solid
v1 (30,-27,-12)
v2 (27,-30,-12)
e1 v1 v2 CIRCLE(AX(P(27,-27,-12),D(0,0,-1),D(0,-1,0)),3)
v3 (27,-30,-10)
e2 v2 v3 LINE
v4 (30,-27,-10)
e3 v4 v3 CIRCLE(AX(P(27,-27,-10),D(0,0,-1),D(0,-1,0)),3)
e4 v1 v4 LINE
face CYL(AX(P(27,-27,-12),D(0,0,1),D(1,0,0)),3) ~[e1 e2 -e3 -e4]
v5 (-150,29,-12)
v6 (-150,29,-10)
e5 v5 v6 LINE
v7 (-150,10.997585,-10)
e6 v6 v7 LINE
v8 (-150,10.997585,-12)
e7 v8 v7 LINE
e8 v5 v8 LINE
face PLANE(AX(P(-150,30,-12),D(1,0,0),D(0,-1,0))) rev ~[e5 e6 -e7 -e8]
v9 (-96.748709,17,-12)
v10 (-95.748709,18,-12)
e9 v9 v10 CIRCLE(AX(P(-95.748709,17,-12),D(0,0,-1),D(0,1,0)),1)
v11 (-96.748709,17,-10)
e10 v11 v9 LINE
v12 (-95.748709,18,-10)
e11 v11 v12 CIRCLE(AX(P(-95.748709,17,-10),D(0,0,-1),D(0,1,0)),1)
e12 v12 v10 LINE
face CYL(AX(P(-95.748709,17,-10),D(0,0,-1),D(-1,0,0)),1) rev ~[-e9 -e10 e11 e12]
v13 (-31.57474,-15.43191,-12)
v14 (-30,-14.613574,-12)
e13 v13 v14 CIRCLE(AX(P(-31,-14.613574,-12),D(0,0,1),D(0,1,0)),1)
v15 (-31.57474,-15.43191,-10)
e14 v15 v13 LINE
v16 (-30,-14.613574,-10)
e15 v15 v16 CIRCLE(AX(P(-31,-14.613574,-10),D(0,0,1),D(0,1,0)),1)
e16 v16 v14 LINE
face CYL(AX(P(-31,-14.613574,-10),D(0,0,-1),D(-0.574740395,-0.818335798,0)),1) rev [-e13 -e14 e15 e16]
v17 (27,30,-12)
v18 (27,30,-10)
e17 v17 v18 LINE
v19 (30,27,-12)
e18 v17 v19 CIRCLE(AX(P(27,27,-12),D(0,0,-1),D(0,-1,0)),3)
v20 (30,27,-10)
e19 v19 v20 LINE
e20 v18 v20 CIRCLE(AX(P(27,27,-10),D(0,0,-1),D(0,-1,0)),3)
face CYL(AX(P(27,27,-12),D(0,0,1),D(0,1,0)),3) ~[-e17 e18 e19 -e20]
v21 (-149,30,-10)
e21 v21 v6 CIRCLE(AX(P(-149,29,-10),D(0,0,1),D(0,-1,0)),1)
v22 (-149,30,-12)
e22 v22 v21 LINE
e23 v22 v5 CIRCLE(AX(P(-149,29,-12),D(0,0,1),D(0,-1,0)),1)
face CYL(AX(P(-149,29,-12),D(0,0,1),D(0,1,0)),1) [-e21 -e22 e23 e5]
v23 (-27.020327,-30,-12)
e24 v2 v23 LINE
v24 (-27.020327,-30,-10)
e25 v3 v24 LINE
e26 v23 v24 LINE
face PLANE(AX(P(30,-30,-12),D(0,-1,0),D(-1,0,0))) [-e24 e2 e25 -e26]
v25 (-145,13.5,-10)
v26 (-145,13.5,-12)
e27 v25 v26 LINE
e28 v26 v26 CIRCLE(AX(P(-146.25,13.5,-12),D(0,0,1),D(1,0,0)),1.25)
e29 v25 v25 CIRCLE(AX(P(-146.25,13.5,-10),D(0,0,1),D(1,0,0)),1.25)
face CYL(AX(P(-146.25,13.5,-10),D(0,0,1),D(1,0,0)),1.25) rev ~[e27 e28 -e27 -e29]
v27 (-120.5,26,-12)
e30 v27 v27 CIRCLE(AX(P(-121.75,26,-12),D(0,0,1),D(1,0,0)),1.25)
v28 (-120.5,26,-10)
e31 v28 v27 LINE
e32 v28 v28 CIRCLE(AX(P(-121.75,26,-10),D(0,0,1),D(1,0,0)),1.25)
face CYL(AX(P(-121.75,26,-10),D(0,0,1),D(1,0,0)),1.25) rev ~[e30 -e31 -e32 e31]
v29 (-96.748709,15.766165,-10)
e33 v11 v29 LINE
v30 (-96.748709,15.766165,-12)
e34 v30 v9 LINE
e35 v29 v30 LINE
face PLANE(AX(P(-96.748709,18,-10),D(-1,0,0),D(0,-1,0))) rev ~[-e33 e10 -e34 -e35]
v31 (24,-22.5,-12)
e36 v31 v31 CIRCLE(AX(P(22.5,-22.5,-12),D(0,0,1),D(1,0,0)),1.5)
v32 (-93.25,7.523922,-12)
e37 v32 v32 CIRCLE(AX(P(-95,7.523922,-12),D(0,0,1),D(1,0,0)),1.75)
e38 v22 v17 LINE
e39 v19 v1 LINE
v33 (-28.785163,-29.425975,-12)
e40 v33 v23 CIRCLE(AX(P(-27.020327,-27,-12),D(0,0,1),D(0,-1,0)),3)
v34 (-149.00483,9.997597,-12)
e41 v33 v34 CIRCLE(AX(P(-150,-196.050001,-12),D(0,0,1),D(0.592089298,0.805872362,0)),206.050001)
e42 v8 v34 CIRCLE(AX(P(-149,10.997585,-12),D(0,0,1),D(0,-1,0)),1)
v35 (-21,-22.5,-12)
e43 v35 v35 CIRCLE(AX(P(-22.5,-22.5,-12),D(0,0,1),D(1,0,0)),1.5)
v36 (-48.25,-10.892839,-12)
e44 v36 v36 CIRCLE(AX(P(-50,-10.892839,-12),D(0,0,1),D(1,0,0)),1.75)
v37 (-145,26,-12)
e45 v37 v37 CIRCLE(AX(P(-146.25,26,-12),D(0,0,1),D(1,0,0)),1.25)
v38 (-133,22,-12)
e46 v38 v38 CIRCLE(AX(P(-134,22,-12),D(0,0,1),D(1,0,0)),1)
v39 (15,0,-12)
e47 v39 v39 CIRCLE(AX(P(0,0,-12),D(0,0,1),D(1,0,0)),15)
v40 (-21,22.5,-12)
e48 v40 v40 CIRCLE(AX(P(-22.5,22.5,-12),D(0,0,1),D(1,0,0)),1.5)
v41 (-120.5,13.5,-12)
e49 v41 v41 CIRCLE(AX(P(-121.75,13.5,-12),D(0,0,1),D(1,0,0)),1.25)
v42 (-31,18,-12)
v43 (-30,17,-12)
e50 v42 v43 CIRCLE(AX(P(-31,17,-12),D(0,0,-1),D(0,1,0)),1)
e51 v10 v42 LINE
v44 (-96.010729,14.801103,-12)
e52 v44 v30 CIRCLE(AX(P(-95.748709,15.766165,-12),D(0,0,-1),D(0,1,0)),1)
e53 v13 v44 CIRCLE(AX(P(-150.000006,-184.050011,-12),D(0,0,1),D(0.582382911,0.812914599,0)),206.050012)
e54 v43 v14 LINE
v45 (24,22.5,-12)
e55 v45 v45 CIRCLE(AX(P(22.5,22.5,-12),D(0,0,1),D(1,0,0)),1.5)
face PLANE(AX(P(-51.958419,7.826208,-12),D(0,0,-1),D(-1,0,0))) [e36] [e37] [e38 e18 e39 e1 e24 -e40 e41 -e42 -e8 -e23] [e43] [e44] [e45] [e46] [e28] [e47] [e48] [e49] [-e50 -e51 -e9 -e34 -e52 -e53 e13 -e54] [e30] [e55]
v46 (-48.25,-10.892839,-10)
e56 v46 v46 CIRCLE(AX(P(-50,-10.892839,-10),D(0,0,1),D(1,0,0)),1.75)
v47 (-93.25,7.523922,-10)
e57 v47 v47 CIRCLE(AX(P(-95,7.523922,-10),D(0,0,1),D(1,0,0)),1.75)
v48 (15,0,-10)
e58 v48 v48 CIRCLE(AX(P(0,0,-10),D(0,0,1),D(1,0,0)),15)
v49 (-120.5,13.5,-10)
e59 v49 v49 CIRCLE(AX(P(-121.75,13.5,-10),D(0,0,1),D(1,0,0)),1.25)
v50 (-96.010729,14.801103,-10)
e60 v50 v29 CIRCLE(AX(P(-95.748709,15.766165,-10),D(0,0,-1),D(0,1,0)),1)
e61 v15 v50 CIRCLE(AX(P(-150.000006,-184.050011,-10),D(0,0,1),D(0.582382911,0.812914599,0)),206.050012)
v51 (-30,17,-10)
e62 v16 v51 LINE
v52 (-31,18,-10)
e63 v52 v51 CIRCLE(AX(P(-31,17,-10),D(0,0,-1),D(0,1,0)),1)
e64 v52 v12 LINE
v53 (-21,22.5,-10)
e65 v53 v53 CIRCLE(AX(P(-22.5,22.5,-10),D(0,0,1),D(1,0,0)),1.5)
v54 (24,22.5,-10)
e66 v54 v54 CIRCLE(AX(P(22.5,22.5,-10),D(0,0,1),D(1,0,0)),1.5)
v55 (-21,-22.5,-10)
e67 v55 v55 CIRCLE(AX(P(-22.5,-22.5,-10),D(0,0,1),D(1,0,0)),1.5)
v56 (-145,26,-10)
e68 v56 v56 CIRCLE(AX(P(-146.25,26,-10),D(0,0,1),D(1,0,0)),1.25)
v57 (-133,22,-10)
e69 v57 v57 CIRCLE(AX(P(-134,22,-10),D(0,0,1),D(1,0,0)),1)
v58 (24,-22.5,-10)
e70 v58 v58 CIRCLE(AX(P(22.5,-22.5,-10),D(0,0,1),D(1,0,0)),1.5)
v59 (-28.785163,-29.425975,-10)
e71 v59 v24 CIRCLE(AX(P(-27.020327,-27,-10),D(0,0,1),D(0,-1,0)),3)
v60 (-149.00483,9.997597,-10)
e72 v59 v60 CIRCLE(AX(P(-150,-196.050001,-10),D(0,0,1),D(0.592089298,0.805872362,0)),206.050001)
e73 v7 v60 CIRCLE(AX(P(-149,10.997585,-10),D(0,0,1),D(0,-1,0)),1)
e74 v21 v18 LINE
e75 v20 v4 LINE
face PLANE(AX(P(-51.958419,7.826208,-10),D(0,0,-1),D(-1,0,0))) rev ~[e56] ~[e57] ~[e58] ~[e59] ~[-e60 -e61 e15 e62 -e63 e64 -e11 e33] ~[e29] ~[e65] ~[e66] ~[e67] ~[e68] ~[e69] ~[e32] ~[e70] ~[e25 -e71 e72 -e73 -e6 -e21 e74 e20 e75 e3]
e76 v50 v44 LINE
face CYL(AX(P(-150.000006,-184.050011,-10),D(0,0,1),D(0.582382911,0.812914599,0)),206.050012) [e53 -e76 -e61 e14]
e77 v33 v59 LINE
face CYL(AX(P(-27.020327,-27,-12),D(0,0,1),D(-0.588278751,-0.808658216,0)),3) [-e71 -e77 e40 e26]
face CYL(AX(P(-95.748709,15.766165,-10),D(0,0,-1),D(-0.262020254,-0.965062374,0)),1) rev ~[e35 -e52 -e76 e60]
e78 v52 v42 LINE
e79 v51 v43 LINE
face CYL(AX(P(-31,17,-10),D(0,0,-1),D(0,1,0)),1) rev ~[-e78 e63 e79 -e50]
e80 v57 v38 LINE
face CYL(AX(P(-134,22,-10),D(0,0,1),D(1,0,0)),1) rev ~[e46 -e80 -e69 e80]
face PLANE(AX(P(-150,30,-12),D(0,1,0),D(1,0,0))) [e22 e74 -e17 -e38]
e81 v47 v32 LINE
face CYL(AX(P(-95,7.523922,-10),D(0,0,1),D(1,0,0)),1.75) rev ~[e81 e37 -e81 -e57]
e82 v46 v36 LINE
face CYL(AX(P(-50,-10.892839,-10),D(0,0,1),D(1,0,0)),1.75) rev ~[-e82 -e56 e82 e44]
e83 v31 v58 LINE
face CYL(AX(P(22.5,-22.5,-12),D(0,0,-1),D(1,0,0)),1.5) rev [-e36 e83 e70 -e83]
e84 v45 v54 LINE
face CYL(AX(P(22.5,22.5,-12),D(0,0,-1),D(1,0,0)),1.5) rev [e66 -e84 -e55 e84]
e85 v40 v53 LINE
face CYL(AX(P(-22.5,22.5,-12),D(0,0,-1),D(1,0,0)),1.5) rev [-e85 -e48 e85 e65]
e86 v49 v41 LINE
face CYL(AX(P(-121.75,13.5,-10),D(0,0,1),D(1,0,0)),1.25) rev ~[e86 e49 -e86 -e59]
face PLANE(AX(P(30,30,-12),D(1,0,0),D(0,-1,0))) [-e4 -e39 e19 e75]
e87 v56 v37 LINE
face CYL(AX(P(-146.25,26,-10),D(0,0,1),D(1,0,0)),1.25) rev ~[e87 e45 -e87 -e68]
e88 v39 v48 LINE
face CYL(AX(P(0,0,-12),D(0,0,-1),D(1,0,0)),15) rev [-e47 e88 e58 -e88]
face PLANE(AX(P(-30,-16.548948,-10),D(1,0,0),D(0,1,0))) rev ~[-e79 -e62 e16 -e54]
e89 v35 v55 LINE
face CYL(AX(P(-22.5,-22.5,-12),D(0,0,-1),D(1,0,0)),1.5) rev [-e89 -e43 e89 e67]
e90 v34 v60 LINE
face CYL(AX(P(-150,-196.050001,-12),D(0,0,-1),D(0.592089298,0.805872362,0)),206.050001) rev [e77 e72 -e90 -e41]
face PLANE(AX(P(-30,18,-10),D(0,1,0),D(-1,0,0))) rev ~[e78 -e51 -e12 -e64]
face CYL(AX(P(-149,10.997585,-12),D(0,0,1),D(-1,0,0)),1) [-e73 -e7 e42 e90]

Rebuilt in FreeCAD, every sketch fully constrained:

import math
import FreeCAD as App
import Part
import Sketcher

V = App.Vector
Q = App.Units.Quantity


def edges_at(feature, points):
    """Names of the edges that pass closest to the given points."""
    edges = feature.Shape.Edges
    near = lambda p: min(range(len(edges)), key=lambda i: edges[i].distToShape(Part.Vertex(*p))[0])
    return sorted({f"Edge{near(p) + 1}" for p in points})

doc = App.newDocument("Part")
params = doc.addObject("Spreadsheet::Sheet", "Params")
for row, (alias, value) in enumerate([
    ("sketch1_diameter", "3 mm"),
    ("sketch1_diameter2", "30 mm"),
    ("sketch1_width", "180 mm"),
    ("sketch1_width2", "58 mm"),
    ("sketch1_height", "20 mm"),
    ("pad1_length", "2 mm"),
    ("fillet_radius", "3 mm"),
    ("sketch2_diameter", "2.5 mm"),
    ("pocket1_length", "25 mm"),
    ("sketch3_diameter", "2 mm"),
    ("sketch4_diameter", "3.5 mm"),
    ("fillet2_radius", "1 mm"),
    ("sketch5_height", "3 mm"),
    ("fillet3_radius", "1 mm"),
], start=1):
    params.set(f"A{row}", alias)
    params.set(f"B{row}", "=" + value)
    params.setAlias(f"B{row}", alias)

body = doc.addObject("PartDesign::Body", "Body")

# Sketch on XY plane
sketch1 = body.newObject("Sketcher::SketchObject", "Sketch")
sketch1.AttachmentSupport = (doc.getObject("XY_Plane"), [""])
sketch1.MapMode = "FlatFace"
sketch1.addGeometry([
    Part.LineSegment(V(30, 30, 0), V(-150, 30, 0)),  # 0
    Part.LineSegment(V(-150, 30, 0), V(-150, 10, 0)),  # 1
    Part.ArcOfCircle(Part.Circle(V(-150, -196.050001, 0), V(0, 0, 1), 206.050001), math.radians(53.694588), math.radians(90)),  # 2
    Part.LineSegment(V(-28, -30, 0), V(30, -30, 0)),  # 3
    Part.LineSegment(V(30, -30, 0), V(30, 30, 0)),  # 4
    Part.Circle(V(22.5, -22.5, 0), V(0, 0, 1), 1.5),  # 5
    Part.Circle(V(-22.5, -22.5, 0), V(0, 0, 1), 1.5),  # 6
    Part.Circle(V(22.5, 22.5, 0), V(0, 0, 1), 1.5),  # 7
    Part.Circle(V(0, 0, 0), V(0, 0, 1), 15),  # 8
    Part.Circle(V(-22.5, 22.5, 0), V(0, 0, 1), 1.5),  # 9
], False)
sketch1.addConstraint([
    Sketcher.Constraint("Coincident", 0, 2, 1, 1),
    Sketcher.Constraint("Coincident", 1, 2, 2, 2),
    Sketcher.Constraint("Coincident", 2, 1, 3, 1),
    Sketcher.Constraint("Coincident", 3, 2, 4, 1),
    Sketcher.Constraint("Coincident", 4, 2, 0, 1),
    Sketcher.Constraint("Horizontal", 0),
    Sketcher.Constraint("Vertical", 1),
    Sketcher.Constraint("Horizontal", 3),
    Sketcher.Constraint("Vertical", 4),
    Sketcher.Constraint("Coincident", 8, 3, -1, 1),
    Sketcher.Constraint("Equal", 5, 6),
    Sketcher.Constraint("Equal", 6, 7),
    Sketcher.Constraint("Equal", 7, 9),
    Sketcher.Constraint("Symmetric", 6, 3, 7, 3, -1, 1),
    Sketcher.Constraint("Symmetric", 5, 3, 9, 3, -1, 1),
    Sketcher.Constraint("Symmetric", 5, 3, 6, 3, -2),
    Sketcher.Constraint("Vertical", 2, 3, 0, 2),
    Sketcher.Constraint("Diameter", 5, Q("3 mm")),
    Sketcher.Constraint("Diameter", 8, Q("30 mm")),
    Sketcher.Constraint("DistanceX", 0, 2, 0, 1, Q("180 mm")),
    Sketcher.Constraint("DistanceX", 3, 1, 3, 2, Q("58 mm")),
    Sketcher.Constraint("DistanceY", 1, 2, 1, 1, Q("20 mm")),
    Sketcher.Constraint("DistanceY", 4, 1, 4, 2, Q("60 mm")),
    Sketcher.Constraint("DistanceX", 2, 3, -1, 1, Q("150 mm")),
    Sketcher.Constraint("DistanceY", -1, 1, 0, 2, Q("30 mm")),
    Sketcher.Constraint("DistanceX", 6, 3, 5, 3, Q("45 mm")),
    Sketcher.Constraint("DistanceY", 5, 3, 7, 3, Q("45 mm")),
])
sketch1.setExpression("Constraints[17]", "Params.sketch1_diameter")
sketch1.setExpression("Constraints[18]", "Params.sketch1_diameter2")
sketch1.setExpression("Constraints[19]", "Params.sketch1_width")
sketch1.setExpression("Constraints[20]", "Params.sketch1_width2")
sketch1.setExpression("Constraints[21]", "Params.sketch1_height")
pad1 = body.newObject("PartDesign::Pad", "Pad")
pad1.Profile = sketch1
pad1.setExpression("Length", "Params.pad1_length")
doc.recompute()

fillet = body.newObject("PartDesign::Fillet", "Fillet")
fillet.Base = (pad1, edges_at(pad1, [(-28, -30, 1), (30, -30, 1), (30, 30, 1)]))
fillet.setExpression("Radius", "Params.fillet_radius")

# Sketch on XY plane
sketch2 = body.newObject("Sketcher::SketchObject", "Sketch001")
sketch2.AttachmentSupport = (doc.getObject("XY_Plane"), [""])
sketch2.MapMode = "FlatFace"
sketch2.AttachmentOffset = App.Placement(V(0, 0, 2), App.Rotation())
sketch2.addGeometry([
    Part.Circle(V(-146.25, 26, 0), V(0, 0, 1), 1.25),
    Part.Circle(V(-121.75, 26, 0), V(0, 0, 1), 1.25),
    Part.Circle(V(-121.75, 13.5, 0), V(0, 0, 1), 1.25),
    Part.Circle(V(-146.25, 13.5, 0), V(0, 0, 1), 1.25),
], False)
sketch2.addConstraint([
    Sketcher.Constraint("Equal", 0, 1),
    Sketcher.Constraint("Equal", 1, 2),
    Sketcher.Constraint("Equal", 2, 3),
    Sketcher.Constraint("Horizontal", 0, 3, 1, 3),
    Sketcher.Constraint("Horizontal", 2, 3, 3, 3),
    Sketcher.Constraint("Vertical", 1, 3, 2, 3),
    Sketcher.Constraint("Vertical", 0, 3, 3, 3),
    Sketcher.Constraint("Diameter", 0, Q("2.5 mm")),
    Sketcher.Constraint("DistanceY", -1, 1, 0, 3, Q("26 mm")),
    Sketcher.Constraint("DistanceY", -1, 1, 2, 3, Q("13.5 mm")),
    Sketcher.Constraint("DistanceX", 0, 3, 1, 3, Q("24.5 mm")),
    Sketcher.Constraint("DistanceX", 0, 3, -1, 1, Q("146.25 mm")),
])
sketch2.setExpression("Constraints[7]", "Params.sketch2_diameter")
pocket1 = body.newObject("PartDesign::Pocket", "Pocket")
pocket1.Profile = sketch2
pocket1.setExpression("Length", "Params.pocket1_length")

# Sketch on XY plane
sketch3 = body.newObject("Sketcher::SketchObject", "Sketch002")
sketch3.AttachmentSupport = (doc.getObject("XY_Plane"), [""])
sketch3.MapMode = "FlatFace"
sketch3.AttachmentOffset = App.Placement(V(0, 0, 2), App.Rotation())
sketch3.addGeometry(Part.Circle(V(-134, 22, 0), V(0, 0, 1), 1), False)
sketch3.addConstraint([
    Sketcher.Constraint("Diameter", 0, Q("2 mm")),
    Sketcher.Constraint("DistanceX", 0, 3, -1, 1, Q("134 mm")),
    Sketcher.Constraint("DistanceY", -1, 1, 0, 3, Q("22 mm")),
])
sketch3.setExpression("Constraints[0]", "Params.sketch3_diameter")
pocket2 = body.newObject("PartDesign::Pocket", "Pocket001")
pocket2.Profile = sketch3
pocket2.Type = "ThroughAll"

# Sketch on XY plane
sketch4 = body.newObject("Sketcher::SketchObject", "Sketch003")
sketch4.AttachmentSupport = (doc.getObject("XY_Plane"), [""])
sketch4.MapMode = "FlatFace"
sketch4.AttachmentOffset = App.Placement(V(0, 0, 2), App.Rotation())
sketch4.addGeometry([
    Part.Circle(V(-95, 7.523922, 0), V(0, 0, 1), 1.75),
    Part.Circle(V(-50, -10.892839, 0), V(0, 0, 1), 1.75),
], False)
sketch4.addConstraint([
    Sketcher.Constraint("Equal", 0, 1),
    Sketcher.Constraint("Diameter", 0, Q("3.5 mm")),
    Sketcher.Constraint("DistanceX", 0, 3, -1, 1, Q("95 mm")),
    Sketcher.Constraint("DistanceX", 1, 3, -1, 1, Q("50 mm")),
    Sketcher.Constraint("DistanceY", -1, 1, 0, 3, Q("7.523922 mm")),
    Sketcher.Constraint("DistanceY", 1, 3, -1, 1, Q("10.892839 mm")),
])
sketch4.setExpression("Constraints[1]", "Params.sketch4_diameter")
pocket3 = body.newObject("PartDesign::Pocket", "Pocket002")
pocket3.Profile = sketch4
pocket3.Type = "ThroughAll"
doc.recompute()

fillet2 = body.newObject("PartDesign::Fillet", "Fillet001")
fillet2.Base = (pocket3, edges_at(pocket3, [(-150, 30, 1), (-150, 10, 1)]))
fillet2.setExpression("Radius", "Params.fillet2_radius")

# Sketch on XY plane
sketch5 = body.newObject("Sketcher::SketchObject", "Sketch004")
sketch5.AttachmentSupport = (doc.getObject("XY_Plane"), [""])
sketch5.MapMode = "FlatFace"
sketch5.AttachmentOffset = App.Placement(V(0, 0, 2), App.Rotation())
sketch5.addGeometry([
    Part.ArcOfCircle(Part.Circle(V(-150.000006, -184.050011, 0), V(0, 0, 1), 206.050012), math.radians(54.381681), math.radians(75.02256)),
    Part.LineSegment(V(-30, -16.548948, 0), V(-30, 18, 0)),
    Part.LineSegment(V(-30, 18, 0), V(-96.748709, 18, 0)),
    Part.LineSegment(V(-96.748709, 18, 0), V(-96.748709, 15, 0)),
], False)
sketch5.addConstraint([
    Sketcher.Constraint("Coincident", 0, 1, 1, 1),
    Sketcher.Constraint("Coincident", 1, 2, 2, 1),
    Sketcher.Constraint("Coincident", 2, 2, 3, 1),
    Sketcher.Constraint("Coincident", 3, 2, 0, 2),
    Sketcher.Constraint("Vertical", 1),
    Sketcher.Constraint("Horizontal", 2),
    Sketcher.Constraint("Vertical", 3),
    Sketcher.Constraint("DistanceY", 3, 2, 3, 1, Q("3 mm")),
    Sketcher.Constraint("DistanceX", 0, 1, -1, 1, Q("30 mm")),
    Sketcher.Constraint("DistanceY", -1, 1, 1, 2, Q("18 mm")),
    Sketcher.Constraint("Radius", 0, Q("206.050012 mm")),
    Sketcher.Constraint("DistanceX", 2, 2, 2, 1, Q("66.748709 mm")),
    Sketcher.Constraint("DistanceY", 1, 1, 1, 2, Q("34.548948 mm")),
])
sketch5.setExpression("Constraints[7]", "Params.sketch5_height")
pocket4 = body.newObject("PartDesign::Pocket", "Pocket003")
pocket4.Profile = sketch5
pocket4.Type = "ThroughAll"
doc.recompute()

fillet3 = body.newObject("PartDesign::Fillet", "Fillet002")
fillet3.Base = (pocket4, edges_at(pocket4, [
    (-30, 18, 1),
    (-96.749, 18, 1),
    (-96.749, 15, 1),
    (-30, -16.549, 1),
]))
fillet3.setExpression("Radius", "Params.fillet3_radius")
body2 = doc.addObject("PartDesign::Body", "Body001")
doc.recompute()

body.Placement = App.Placement(V(0, 0, -12), App.Rotation(V(0, 0, 1), 0))
boolean = body2.newObject("PartDesign::Boolean", "Boolean")
boolean.Type = "Fuse"
boolean.addObjects([body])

doc.recompute()
